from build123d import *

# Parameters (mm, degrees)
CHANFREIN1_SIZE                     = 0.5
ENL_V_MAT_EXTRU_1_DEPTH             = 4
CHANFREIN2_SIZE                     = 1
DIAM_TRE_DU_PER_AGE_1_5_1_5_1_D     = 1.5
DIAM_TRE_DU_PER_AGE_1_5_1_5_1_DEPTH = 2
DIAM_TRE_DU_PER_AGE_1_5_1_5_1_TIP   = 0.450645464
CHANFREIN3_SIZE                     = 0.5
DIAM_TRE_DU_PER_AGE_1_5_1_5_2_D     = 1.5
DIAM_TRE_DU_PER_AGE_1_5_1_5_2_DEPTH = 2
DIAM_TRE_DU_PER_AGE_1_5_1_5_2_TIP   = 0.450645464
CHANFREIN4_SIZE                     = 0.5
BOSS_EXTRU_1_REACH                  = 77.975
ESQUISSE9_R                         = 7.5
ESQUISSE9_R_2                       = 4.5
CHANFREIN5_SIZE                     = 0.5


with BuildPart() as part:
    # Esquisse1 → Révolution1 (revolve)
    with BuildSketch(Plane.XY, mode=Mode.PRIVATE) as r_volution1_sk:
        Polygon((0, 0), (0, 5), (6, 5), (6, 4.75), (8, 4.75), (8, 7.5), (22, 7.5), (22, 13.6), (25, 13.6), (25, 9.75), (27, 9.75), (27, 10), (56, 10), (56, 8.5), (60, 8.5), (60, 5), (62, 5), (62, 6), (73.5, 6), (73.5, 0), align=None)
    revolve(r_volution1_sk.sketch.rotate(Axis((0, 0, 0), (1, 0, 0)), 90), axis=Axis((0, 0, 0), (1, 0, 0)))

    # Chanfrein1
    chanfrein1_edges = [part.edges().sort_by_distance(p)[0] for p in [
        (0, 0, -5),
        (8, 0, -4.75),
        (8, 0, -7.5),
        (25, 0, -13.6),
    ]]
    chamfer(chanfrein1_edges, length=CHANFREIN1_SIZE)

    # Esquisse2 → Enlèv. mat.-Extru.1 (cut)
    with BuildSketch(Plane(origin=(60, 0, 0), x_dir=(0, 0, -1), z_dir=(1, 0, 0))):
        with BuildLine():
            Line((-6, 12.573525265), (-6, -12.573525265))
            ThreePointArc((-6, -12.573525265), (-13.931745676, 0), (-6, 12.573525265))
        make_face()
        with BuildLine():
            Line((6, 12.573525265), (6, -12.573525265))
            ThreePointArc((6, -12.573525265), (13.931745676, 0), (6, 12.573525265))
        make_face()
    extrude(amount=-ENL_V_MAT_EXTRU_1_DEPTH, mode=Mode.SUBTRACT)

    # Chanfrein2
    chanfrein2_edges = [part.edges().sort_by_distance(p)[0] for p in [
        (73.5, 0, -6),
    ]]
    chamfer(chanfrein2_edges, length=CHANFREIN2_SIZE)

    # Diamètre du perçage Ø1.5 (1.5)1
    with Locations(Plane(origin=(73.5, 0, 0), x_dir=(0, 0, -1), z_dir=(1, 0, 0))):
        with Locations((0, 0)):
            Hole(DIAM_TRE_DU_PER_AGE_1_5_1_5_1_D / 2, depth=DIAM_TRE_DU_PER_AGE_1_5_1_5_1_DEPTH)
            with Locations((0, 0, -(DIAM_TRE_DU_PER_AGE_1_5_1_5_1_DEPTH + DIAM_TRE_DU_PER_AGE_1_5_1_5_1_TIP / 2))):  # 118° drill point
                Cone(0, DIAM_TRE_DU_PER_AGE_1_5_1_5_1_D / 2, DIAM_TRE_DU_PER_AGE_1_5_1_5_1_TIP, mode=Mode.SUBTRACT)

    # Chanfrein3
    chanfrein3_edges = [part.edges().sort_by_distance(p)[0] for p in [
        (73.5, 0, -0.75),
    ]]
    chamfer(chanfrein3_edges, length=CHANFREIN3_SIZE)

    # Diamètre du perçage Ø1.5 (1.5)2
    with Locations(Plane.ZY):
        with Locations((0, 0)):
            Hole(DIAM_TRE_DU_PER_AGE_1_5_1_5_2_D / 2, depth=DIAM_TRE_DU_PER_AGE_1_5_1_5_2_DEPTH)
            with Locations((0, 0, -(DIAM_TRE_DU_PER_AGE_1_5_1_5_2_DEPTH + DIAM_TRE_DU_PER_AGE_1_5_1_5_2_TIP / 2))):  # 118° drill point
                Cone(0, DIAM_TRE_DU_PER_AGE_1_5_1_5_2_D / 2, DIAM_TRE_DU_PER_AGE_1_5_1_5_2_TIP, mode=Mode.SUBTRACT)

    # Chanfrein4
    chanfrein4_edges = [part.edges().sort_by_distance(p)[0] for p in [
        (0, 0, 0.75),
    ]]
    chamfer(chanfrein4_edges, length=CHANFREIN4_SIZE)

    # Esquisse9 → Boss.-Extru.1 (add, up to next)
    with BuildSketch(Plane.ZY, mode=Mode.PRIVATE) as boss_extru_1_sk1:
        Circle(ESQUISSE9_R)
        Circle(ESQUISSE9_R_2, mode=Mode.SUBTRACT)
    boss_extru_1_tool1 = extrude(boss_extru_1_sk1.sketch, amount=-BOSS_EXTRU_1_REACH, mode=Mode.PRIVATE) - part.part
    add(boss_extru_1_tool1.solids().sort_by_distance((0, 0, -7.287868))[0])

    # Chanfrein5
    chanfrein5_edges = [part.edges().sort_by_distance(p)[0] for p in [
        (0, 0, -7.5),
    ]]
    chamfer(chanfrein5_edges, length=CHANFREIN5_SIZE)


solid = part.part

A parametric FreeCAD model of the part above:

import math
import FreeCAD as App
import Part
import Sketcher
from FreeCAD import Vector


def edges_at(feature, points):
    """Names of the edges that pass closest to the given points."""
    edges = feature.Shape.Edges
    near = lambda p: min(range(len(edges)), key=lambda i: edges[i].distToShape(Part.Vertex(*p))[0])
    return sorted({f"Edge{near(p) + 1}" for p in points})


def add_polygon(sketch, points):
    """Adds a closed chain of lines whose ends are joined by coincident constraints."""
    first, n = sketch.GeometryCount, len(points)
    for a, b in zip(points, points[1:] + points[:1]):
        sketch.addGeometry(Part.LineSegment(App.Vector(*a, 0), App.Vector(*b, 0)), False)
    for i in range(n):
        sketch.addConstraint(Sketcher.Constraint("Coincident", first + i, 2, first + (i + 1) % n, 1))

doc = App.newDocument("Part")
body = doc.addObject("PartDesign::Body", "Body")

# Sketch on XY plane
sketch1 = doc.addObject("Sketcher::SketchObject", "Sketch")
body.addObject(sketch1)
sketch1.AttachmentSupport = (doc.XY_Plane, [""])
sketch1.MapMode = "FlatFace"
add_polygon(sketch1, [(0, 5), (0, 0), (73.5, 0), (73.5, 6), (62, 6), (62, 5), (60, 5), (60, 8.5), (56, 8.5), (56, 10), (27, 10), (27, 9.75), (25, 9.75), (25, 13.6), (22, 13.6), (22, 7.5), (8, 7.5), (8, 4.75), (6, 4.75), (6, 5)])  # lines 0-19
sketch1.addConstraint([
    Sketcher.Constraint("Vertical", 0),
    Sketcher.Constraint("Horizontal", 1),
    Sketcher.Constraint("Vertical", 2),
    Sketcher.Constraint("Horizontal", 3),
    Sketcher.Constraint("Vertical", 4),
    Sketcher.Constraint("Horizontal", 5),
    Sketcher.Constraint("Vertical", 6),
    Sketcher.Constraint("Horizontal", 7),
    Sketcher.Constraint("Vertical", 8),
    Sketcher.Constraint("Horizontal", 9),
    Sketcher.Constraint("Vertical", 10),
    Sketcher.Constraint("Horizontal", 11),
    Sketcher.Constraint("Vertical", 12),
    Sketcher.Constraint("Horizontal", 13),
    Sketcher.Constraint("Vertical", 14),
    Sketcher.Constraint("Horizontal", 15),
    Sketcher.Constraint("Vertical", 16),
    Sketcher.Constraint("Horizontal", 17),
    Sketcher.Constraint("Vertical", 18),
    Sketcher.Constraint("Horizontal", 19),
    Sketcher.Constraint("Coincident", 0, 2, -1, 1),
    Sketcher.Constraint("Horizontal", 5, 2, 18, 2),
    Sketcher.Constraint("Equal", 5, 11),
    Sketcher.Constraint("Equal", 11, 17),
    Sketcher.Constraint("Equal", 19, 2),
    Sketcher.Constraint("Equal", 10, 18),
    Sketcher.Constraint("DistanceX", 5, 2, 5, 1, 2.0),
    Sketcher.Constraint("DistanceX", 7, 2, 7, 1, 4.0),
    Sketcher.Constraint("DistanceX", 9, 2, 9, 1, 29.0),
    Sketcher.Constraint("DistanceX", 13, 2, 13, 1, 3.0),
    Sketcher.Constraint("DistanceX", 15, 2, 15, 1, 14.0),
    Sketcher.Constraint("DistanceX", 19, 2, 19, 1, 6.0),
    Sketcher.Constraint("DistanceY", 0, 2, 0, 1, 5.0),
    Sketcher.Constraint("DistanceX", 1, 1, 1, 2, 73.5),
    Sketcher.Constraint("DistanceY", 6, 1, 6, 2, 3.5),
    Sketcher.Constraint("DistanceY", 8, 1, 8, 2, 1.5),
    Sketcher.Constraint("DistanceY", 14, 2, 14, 1, 6.1),
    Sketcher.Constraint("DistanceY", 10, 2, 10, 1, 0.25),
    Sketcher.Constraint("DistanceY", 12, 1, 12, 2, 3.85),
])
revolution = doc.addObject("PartDesign::Revolution", "Revolution")
body.addObject(revolution)
revolution.Profile = sketch1
revolution.ReferenceAxis = (sketch1, ["H_Axis"])
revolution.Angle = 360
doc.recompute()

chamfer = doc.addObject("PartDesign::Chamfer", "Chamfer")
body.addObject(chamfer)
chamfer.Base = (revolution, edges_at(revolution, [
    (0, 0, -5),
    (8, 0, -4.75),
    (8, 0, -7.5),
    (25, 0, -13.6),
]))
chamfer.Size = 0.5

# Sketch on YZ plane
sketch2 = doc.addObject("Sketcher::SketchObject", "Sketch001")
body.addObject(sketch2)
sketch2.AttachmentSupport = (doc.YZ_Plane, [""])
sketch2.MapMode = "FlatFace"
sketch2.AttachmentOffset = App.Placement(Vector(0, 0, 60), App.Rotation())
sketch2.addGeometry([
    Part.LineSegment(Vector(-12.573525, 6, 0), Vector(12.573525, 6, 0)),
    Part.ArcOfCircle(Part.Circle(Vector(0, 0, 0), Vector(0, 0, 1), 13.931746), math.radians(25.510156), math.radians(154.489844)),
    Part.LineSegment(Vector(12.573525, -6, 0), Vector(-12.573525, -6, 0)),
    Part.ArcOfCircle(Part.Circle(Vector(0, 0, 0), Vector(0, 0, 1), 13.931746), math.radians(-154.489844), math.radians(-25.510156)),
], False)
sketch2.addConstraint([
    Sketcher.Constraint("Coincident", 0, 1, 1, 2),
    Sketcher.Constraint("Coincident", 1, 1, 0, 2),
    Sketcher.Constraint("Coincident", 2, 1, 3, 2),
    Sketcher.Constraint("Coincident", 3, 1, 2, 2),
    Sketcher.Constraint("Horizontal", 0),
    Sketcher.Constraint("Horizontal", 2),
    Sketcher.Constraint("Coincident", 1, 3, -1, 1),
    Sketcher.Constraint("Coincident", 3, 3, -1, 1),
    Sketcher.Constraint("Equal", 1, 3),
    Sketcher.Constraint("Vertical", 1, 1, 2, 1),
    Sketcher.Constraint("DistanceY", -1, 1, 0, 1, 6.0),
    Sketcher.Constraint("Radius", 1, 13.931746),
])
pocket1 = doc.addObject("PartDesign::Pocket", "Pocket")
body.addObject(pocket1)
pocket1.Profile = sketch2
pocket1.Length = 4
doc.recompute()

chamfer2 = doc.addObject("PartDesign::Chamfer", "Chamfer001")
body.addObject(chamfer2)
chamfer2.Base = (pocket1, edges_at(pocket1, [(73.5, 0, -6)]))
chamfer2.Size = 1

# Sketch on YZ plane
sketch3 = doc.addObject("Sketcher::SketchObject", "Sketch002")
body.addObject(sketch3)
sketch3.AttachmentSupport = (doc.YZ_Plane, [""])
sketch3.MapMode = "FlatFace"
sketch3.AttachmentOffset = App.Placement(Vector(0, 0, 73.5), App.Rotation())
sketch3.addGeometry(Part.Circle(Vector(0, 0, 0), Vector(0, 0, 1), 0.75), False)
sketch3.addConstraint([
    Sketcher.Constraint("Coincident", 0, 3, -1, 1),
    Sketcher.Constraint("Diameter", 0, 1.5),
])
doc.recompute()
hole = doc.addObject("PartDesign::Hole", "Hole")
body.addObject(hole)
hole.Profile = sketch3
hole.ThreadType = "None"
hole.Diameter = 1.5
hole.DepthType = "Dimension"
hole.Depth = 2
hole.DrillPoint = "Angled"
hole.DrillPointAngle = 118
doc.recompute()

chamfer3 = doc.addObject("PartDesign::Chamfer", "Chamfer002")
body.addObject(chamfer3)
chamfer3.Base = (hole, edges_at(hole, [(73.5, 0, -0.75)]))
chamfer3.Size = 0.5

# Sketch on YZ plane
sketch4 = doc.addObject("Sketcher::SketchObject", "Sketch003")
body.addObject(sketch4)
sketch4.AttachmentSupport = (doc.YZ_Plane, [""])
sketch4.MapMode = "FlatFace"
sketch4.addGeometry(Part.Circle(Vector(0, 0, 0), Vector(0, 0, 1), 0.75), False)
sketch4.addConstraint([
    Sketcher.Constraint("Coincident", 0, 3, -1, 1),
    Sketcher.Constraint("Diameter", 0, 1.5),
])
doc.recompute()
hole2 = doc.addObject("PartDesign::Hole", "Hole001")
body.addObject(hole2)
hole2.Profile = sketch4
hole2.ThreadType = "None"
hole2.Diameter = 1.5
hole2.DepthType = "Dimension"
hole2.Depth = 2
hole2.DrillPoint = "Angled"
hole2.DrillPointAngle = 118
hole2.Reversed = True
doc.recompute()

chamfer4 = doc.addObject("PartDesign::Chamfer", "Chamfer003")
body.addObject(chamfer4)
chamfer4.Base = (hole2, edges_at(hole2, [(0, 0, 0.75)]))
chamfer4.Size = 0.5

# Sketch on YZ plane
sketch5 = doc.addObject("Sketcher::SketchObject", "Sketch004")
body.addObject(sketch5)
sketch5.AttachmentSupport = (doc.YZ_Plane, [""])
sketch5.MapMode = "FlatFace"
sketch5.addGeometry([
    Part.Circle(Vector(0, 0, 0), Vector(0, 0, 1), 7.5),
    Part.Circle(Vector(0, 0, 0), Vector(0, 0, 1), 4.5),
], False)
sketch5.addConstraint([
    Sketcher.Constraint("Coincident", 0, 3, -1, 1),
    Sketcher.Constraint("Coincident", 1, 3, -1, 1),
    Sketcher.Constraint("Diameter", 0, 15.0),
    Sketcher.Constraint("Diameter", 1, 9.0),
])
pad1 = doc.addObject("PartDesign::Pad", "Pad")
body.addObject(pad1)
pad1.Profile = sketch5
pad1.Length = 8.5
doc.recompute()

chamfer5 = doc.addObject("PartDesign::Chamfer", "Chamfer004")
body.addObject(chamfer5)
chamfer5.Base = (pad1, edges_at(pad1, [(0, 0, -7.5)]))
chamfer5.Size = 0.5

doc.recompute()
